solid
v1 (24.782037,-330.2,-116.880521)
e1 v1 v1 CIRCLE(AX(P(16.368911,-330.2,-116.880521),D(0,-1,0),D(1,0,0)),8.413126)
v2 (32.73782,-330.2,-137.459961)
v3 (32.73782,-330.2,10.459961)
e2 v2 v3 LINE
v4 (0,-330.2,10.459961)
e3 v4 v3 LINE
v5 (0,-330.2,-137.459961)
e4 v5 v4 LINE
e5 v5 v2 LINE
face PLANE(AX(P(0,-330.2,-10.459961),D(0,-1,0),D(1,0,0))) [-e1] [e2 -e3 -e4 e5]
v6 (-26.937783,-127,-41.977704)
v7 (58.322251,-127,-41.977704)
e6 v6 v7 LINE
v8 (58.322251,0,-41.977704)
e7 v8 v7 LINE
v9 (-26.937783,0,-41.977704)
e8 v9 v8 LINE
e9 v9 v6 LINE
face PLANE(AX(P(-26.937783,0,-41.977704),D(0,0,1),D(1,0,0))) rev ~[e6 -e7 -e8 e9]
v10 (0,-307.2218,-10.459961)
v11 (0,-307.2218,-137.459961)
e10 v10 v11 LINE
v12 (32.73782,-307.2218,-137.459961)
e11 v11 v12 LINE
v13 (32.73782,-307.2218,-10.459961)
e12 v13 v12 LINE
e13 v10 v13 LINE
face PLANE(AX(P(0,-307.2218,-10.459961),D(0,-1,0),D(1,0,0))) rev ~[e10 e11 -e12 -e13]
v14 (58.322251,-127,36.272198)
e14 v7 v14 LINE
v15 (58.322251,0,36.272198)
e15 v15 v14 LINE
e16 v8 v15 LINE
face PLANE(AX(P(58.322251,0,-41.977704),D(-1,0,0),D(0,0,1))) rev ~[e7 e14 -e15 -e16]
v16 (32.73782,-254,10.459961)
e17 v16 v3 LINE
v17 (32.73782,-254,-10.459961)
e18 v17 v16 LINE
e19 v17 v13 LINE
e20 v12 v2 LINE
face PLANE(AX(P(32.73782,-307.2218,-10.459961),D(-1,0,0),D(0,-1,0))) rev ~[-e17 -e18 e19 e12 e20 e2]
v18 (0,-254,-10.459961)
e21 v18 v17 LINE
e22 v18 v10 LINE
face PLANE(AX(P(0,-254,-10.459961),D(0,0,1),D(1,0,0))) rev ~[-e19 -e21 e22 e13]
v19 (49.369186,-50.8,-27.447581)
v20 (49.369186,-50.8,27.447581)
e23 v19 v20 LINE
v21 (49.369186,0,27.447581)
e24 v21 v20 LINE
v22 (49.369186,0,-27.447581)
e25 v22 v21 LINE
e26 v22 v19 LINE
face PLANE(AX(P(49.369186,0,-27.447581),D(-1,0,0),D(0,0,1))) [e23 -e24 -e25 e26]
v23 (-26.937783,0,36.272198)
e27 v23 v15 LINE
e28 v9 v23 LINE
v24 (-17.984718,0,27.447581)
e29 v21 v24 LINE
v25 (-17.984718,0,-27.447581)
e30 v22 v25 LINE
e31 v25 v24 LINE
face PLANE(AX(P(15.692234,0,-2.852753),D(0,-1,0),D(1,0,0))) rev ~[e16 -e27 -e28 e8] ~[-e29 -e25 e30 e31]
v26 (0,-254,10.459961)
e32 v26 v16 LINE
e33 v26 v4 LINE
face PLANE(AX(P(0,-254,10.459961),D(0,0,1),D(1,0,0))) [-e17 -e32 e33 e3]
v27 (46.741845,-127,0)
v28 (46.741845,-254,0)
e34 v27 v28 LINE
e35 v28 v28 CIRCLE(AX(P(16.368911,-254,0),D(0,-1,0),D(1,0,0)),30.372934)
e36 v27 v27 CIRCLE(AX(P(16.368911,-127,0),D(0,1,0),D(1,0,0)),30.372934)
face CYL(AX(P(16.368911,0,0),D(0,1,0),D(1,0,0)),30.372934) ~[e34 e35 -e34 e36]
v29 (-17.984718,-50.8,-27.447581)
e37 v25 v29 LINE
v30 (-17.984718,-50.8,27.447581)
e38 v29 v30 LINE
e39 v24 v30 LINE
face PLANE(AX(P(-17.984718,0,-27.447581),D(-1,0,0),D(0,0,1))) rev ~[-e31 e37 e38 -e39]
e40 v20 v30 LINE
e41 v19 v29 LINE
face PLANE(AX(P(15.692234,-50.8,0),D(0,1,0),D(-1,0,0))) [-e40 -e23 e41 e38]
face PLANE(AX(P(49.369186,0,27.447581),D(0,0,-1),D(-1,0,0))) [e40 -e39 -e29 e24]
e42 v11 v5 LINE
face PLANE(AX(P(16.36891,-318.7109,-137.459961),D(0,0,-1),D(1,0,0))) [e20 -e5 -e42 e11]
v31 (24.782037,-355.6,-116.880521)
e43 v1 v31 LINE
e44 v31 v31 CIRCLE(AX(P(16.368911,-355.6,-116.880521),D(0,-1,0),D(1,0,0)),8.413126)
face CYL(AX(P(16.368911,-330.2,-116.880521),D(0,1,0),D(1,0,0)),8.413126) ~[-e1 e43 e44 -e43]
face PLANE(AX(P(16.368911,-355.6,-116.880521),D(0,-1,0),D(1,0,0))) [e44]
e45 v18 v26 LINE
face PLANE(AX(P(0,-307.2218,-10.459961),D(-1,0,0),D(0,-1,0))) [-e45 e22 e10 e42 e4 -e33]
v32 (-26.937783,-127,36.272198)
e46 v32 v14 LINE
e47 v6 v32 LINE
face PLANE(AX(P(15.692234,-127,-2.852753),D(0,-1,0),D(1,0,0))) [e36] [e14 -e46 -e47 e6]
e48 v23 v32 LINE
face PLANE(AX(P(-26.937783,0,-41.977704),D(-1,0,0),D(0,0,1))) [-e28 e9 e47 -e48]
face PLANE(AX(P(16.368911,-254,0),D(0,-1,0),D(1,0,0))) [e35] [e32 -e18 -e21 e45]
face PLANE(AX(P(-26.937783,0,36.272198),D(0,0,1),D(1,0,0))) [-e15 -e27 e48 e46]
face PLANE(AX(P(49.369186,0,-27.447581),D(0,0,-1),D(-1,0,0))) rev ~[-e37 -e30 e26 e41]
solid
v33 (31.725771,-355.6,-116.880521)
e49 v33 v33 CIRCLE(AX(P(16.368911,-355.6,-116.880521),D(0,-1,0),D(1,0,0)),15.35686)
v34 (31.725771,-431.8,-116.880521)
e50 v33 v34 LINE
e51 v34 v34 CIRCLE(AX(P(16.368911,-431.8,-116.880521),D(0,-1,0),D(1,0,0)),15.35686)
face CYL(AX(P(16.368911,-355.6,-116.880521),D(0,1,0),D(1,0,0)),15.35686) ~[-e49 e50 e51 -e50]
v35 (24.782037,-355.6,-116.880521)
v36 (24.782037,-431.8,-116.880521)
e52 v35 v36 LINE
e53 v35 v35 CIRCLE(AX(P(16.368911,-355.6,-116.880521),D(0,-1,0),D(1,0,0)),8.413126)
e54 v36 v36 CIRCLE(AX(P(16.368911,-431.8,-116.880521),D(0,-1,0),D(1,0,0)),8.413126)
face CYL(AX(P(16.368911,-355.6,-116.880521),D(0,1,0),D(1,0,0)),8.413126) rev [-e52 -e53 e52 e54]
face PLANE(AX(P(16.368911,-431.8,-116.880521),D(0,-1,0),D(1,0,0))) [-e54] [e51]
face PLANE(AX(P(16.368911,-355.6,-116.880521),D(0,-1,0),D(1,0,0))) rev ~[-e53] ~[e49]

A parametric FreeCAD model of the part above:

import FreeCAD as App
import Part
import Sketcher
Q = App.Units.Quantity


def add_polygon(sketch, points):
    """Adds a closed chain of lines whose ends are joined by coincident constraints."""
    first, n = sketch.GeometryCount, len(points)
    for a, b in zip(points, points[1:] + points[:1]):
        sketch.addGeometry(Part.LineSegment(App.Vector(*a, 0), App.Vector(*b, 0)), False)
    for i in range(n):
        sketch.addConstraint(Sketcher.Constraint("Coincident", first + i, 2, first + (i + 1) % n, 1))

doc = App.newDocument("Part")
body = doc.addObject("PartDesign::Body", "Body")

sketch1 = doc.addObject("Sketcher::SketchObject", "Sketch")
body.addObject(sketch1)
sketch1.AttachmentSupport = (doc.XZ_Plane, [""])
sketch1.MapMode = "FlatFace"
sketch1.addGeometry(Part.Circle(App.Vector(16.368911, 0, 0), App.Vector(0, 0, 1), 30.372934), False)
sketch1.addConstraint([
    Sketcher.Constraint("PointOnObject", 0, 3, -1),
    Sketcher.Constraint("Diameter", 0, Q("60.745868 mm")),
    Sketcher.Constraint("DistanceX", -1, 1, 0, 3, Q("16.368911 mm")),
])
pad1 = doc.addObject("PartDesign::Pad", "Pad")
body.addObject(pad1)
pad1.Profile = sketch1
pad1.Length = Q("10 in")

sketch2 = doc.addObject("Sketcher::SketchObject", "Sketch001")
body.addObject(sketch2)
sketch2.AttachmentSupport = (doc.XZ_Plane, [""])
sketch2.MapMode = "FlatFace"
add_polygon(sketch2, [(-26.937783, 36.272198), (-26.937783, -41.977704), (58.322251, -41.977704), (58.322251, 36.272198)])
sketch2.addConstraint([
    Sketcher.Constraint("Vertical", 0),
    Sketcher.Constraint("Horizontal", 1),
    Sketcher.Constraint("Vertical", 2),
    Sketcher.Constraint("Horizontal", 3),
    Sketcher.Constraint("DistanceY", -1, 1, 2, 2, Q("36.272198 mm")),
    Sketcher.Constraint("DistanceX", 1, 1, 1, 2, Q("85.260034 mm")),
    Sketcher.Constraint("DistanceY", 0, 2, 0, 1, Q("78.249902 mm")),
    Sketcher.Constraint("DistanceX", -1, 1, 1, 2, Q("58.322251 mm")),
])
pad2 = doc.addObject("PartDesign::Pad", "Pad001")
body.addObject(pad2)
pad2.Profile = sketch2
pad2.Length = Q("5 in")

sketch3 = doc.addObject("Sketcher::SketchObject", "Sketch002")
body.addObject(sketch3)
sketch3.AttachmentSupport = (doc.XZ_Plane, [""])
sketch3.MapMode = "FlatFace"
sketch3.AttachmentOffset = App.Placement(App.Vector(0, 0, 10 * 25.4), App.Rotation())
add_polygon(sketch3, [(0, 10.459961), (0, -10.459961), (32.73782, -10.459961), (32.73782, 10.459961)])
sketch3.addConstraint([
    Sketcher.Constraint("Vertical", 0),
    Sketcher.Constraint("Horizontal", 1),
    Sketcher.Constraint("Vertical", 2),
    Sketcher.Constraint("Horizontal", 3),
    Sketcher.Constraint("Symmetric", 0, 2, 3, 2, -1, 1),
    Sketcher.Constraint("DistanceX", 1, 1, 1, 2, Q("32.737821 mm")),
    Sketcher.Constraint("DistanceY", 0, 2, 0, 1, Q("20.919922 mm")),
])
pad3 = doc.addObject("PartDesign::Pad", "Pad002")
body.addObject(pad3)
pad3.Profile = sketch3
pad3.Length = Q("3 in")

sketch4 = doc.addObject("Sketcher::SketchObject", "Sketch003")
body.addObject(sketch4)
sketch4.AttachmentSupport = (doc.XY_Plane, [""])
sketch4.MapMode = "FlatFace"
sketch4.AttachmentOffset = App.Placement(App.Vector(0, 0, -10.459961), App.Rotation())
add_polygon(sketch4, [(0, -330.2), (0, -307.2218), (32.73782, -307.2218), (32.73782, -330.2)])
sketch4.addConstraint([
    Sketcher.Constraint("Vertical", 0),
    Sketcher.Constraint("Horizontal", 1),
    Sketcher.Constraint("Vertical", 2),
    Sketcher.Constraint("Horizontal", 3),
    Sketcher.Constraint("PointOnObject", 0, 2, -2),
    Sketcher.Constraint("DistanceY", 2, 2, -1, 1, Q("13 in")),
    Sketcher.Constraint("DistanceY", 0, 1, 0, 2, Q("22.9782 mm")),
    Sketcher.Constraint("DistanceX", 1, 1, 1, 2, Q("32.737821 mm")),
])
pad4 = doc.addObject("PartDesign::Pad", "Pad003")
body.addObject(pad4)
pad4.Profile = sketch4
pad4.Length = Q("5 in")
pad4.Reversed = True

sketch5 = doc.addObject("Sketcher::SketchObject", "Sketch004")
body.addObject(sketch5)
sketch5.AttachmentSupport = (doc.XZ_Plane, [""])
sketch5.MapMode = "FlatFace"
sketch5.AttachmentOffset = App.Placement(App.Vector(0, 0, 13 * 25.4), App.Rotation())
sketch5.addGeometry(Part.Circle(App.Vector(16.368911, -116.880521, 0), App.Vector(0, 0, 1), 8.413126), False)
sketch5.addConstraint([
    Sketcher.Constraint("Diameter", 0, Q("16.826252 mm")),
    Sketcher.Constraint("DistanceX", -1, 1, 0, 3, Q("16.368911 mm")),
    Sketcher.Constraint("DistanceY", 0, 3, -1, 1, Q("116.880521 mm")),
])
pad5 = doc.addObject("PartDesign::Pad", "Pad004")
body.addObject(pad5)
pad5.Profile = sketch5
pad5.Length = Q("1 in")

sketch6 = doc.addObject("Sketcher::SketchObject", "Sketch005")
body.addObject(sketch6)
sketch6.AttachmentSupport = (doc.XZ_Plane, [""])
sketch6.MapMode = "FlatFace"
add_polygon(sketch6, [(49.369186, 27.447581), (49.369186, -27.447581), (-17.984718, -27.447581), (-17.984718, 27.447581)])
sketch6.addConstraint([
    Sketcher.Constraint("Vertical", 0),
    Sketcher.Constraint("Horizontal", 1),
    Sketcher.Constraint("Vertical", 2),
    Sketcher.Constraint("Horizontal", 3),
    Sketcher.Constraint("DistanceX", 1, 2, 1, 1, Q("67.353904 mm")),
    Sketcher.Constraint("DistanceY", 0, 2, 0, 1, Q("54.895162 mm")),
    Sketcher.Constraint("DistanceY", 0, 2, -1, 1, Q("27.447581 mm")),
    Sketcher.Constraint("DistanceX", 1, 2, -1, 1, Q("17.984718 mm")),
])
pocket1 = doc.addObject("PartDesign::Pocket", "Pocket")
body.addObject(pocket1)
pocket1.Profile = sketch6
pocket1.Length = Q("2 in")
pocket1.Reversed = True
body2 = doc.addObject("PartDesign::Body", "Body001")

sketch7 = doc.addObject("Sketcher::SketchObject", "Sketch006")
body2.addObject(sketch7)
sketch7.AttachmentSupport = (doc.getObject("XZ_Plane001"), [""])
sketch7.MapMode = "FlatFace"
sketch7.AttachmentOffset = App.Placement(App.Vector(0, 0, 14 * 25.4), App.Rotation())
sketch7.addGeometry([
    Part.Circle(App.Vector(16.368911, -116.880521, 0), App.Vector(0, 0, 1), 15.35686),
    Part.Circle(App.Vector(16.368911, -116.880521, 0), App.Vector(0, 0, 1), 8.413126),
], False)
sketch7.addConstraint([
    Sketcher.Constraint("Coincident", 1, 3, 0, 3),
    Sketcher.Constraint("Diameter", 0, Q("30.71372 mm")),
    Sketcher.Constraint("Diameter", 1, Q("16.826252 mm")),
    Sketcher.Constraint("DistanceX", -1, 1, 0, 3, Q("16.368911 mm")),
    Sketcher.Constraint("DistanceY", 0, 3, -1, 1, Q("116.880521 mm")),
])
pad6 = doc.addObject("PartDesign::Pad", "Pad005")
body2.addObject(pad6)
pad6.Profile = sketch7
pad6.Length = Q("3 in")

doc.recompute()
